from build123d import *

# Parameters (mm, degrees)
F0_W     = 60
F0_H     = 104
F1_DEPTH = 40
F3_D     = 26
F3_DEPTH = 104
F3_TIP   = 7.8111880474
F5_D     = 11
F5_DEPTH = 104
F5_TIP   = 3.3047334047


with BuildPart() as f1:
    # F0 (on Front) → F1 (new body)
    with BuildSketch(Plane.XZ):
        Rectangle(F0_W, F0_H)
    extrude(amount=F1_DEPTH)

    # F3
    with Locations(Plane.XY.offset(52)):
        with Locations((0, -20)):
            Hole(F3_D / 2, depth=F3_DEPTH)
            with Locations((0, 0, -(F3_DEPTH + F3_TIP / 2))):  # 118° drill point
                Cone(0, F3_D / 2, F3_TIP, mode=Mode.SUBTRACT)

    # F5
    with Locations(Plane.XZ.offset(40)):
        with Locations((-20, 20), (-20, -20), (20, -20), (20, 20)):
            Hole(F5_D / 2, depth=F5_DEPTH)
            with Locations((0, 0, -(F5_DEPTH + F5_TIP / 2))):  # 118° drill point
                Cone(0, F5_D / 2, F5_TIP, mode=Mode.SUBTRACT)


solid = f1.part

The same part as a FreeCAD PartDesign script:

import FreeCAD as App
import Part
import Sketcher

V = App.Vector
Q = App.Units.Quantity

doc = App.newDocument("Part")
params = doc.addObject("Spreadsheet::Sheet", "Params")
for row, (alias, value) in enumerate([
    ("sketch1_width", "60 mm"),
    ("sketch1_height", "104 mm"),
    ("pad1_length", "40 mm"),
    ("sketch2_diameter", "26 mm"),
    ("hole_diameter", "26 mm"),
    ("hole_depth", "104 mm"),
    ("sketch3_diameter", "11 mm"),
    ("hole2_diameter", "11 mm"),
    ("hole2_depth", "104 mm"),
], start=1):
    params.set(f"A{row}", alias)
    params.set(f"B{row}", "=" + value)
    params.setAlias(f"B{row}", alias)

body = doc.addObject("PartDesign::Body", "Body")

sketch1 = body.newObject("Sketcher::SketchObject", "Sketch")
sketch1.AttachmentSupport = (doc.getObject("XZ_Plane"), [""])
sketch1.MapMode = "FlatFace"
sketch1.addGeometry(Part.LineSegment(V(-30, 52, 0), V(-30, -52, 0)), False)
sketch1.addGeometry(Part.LineSegment(V(-30, -52, 0), V(30, -52, 0)), False)
sketch1.addGeometry(Part.LineSegment(V(30, -52, 0), V(30, 52, 0)), False)
sketch1.addGeometry(Part.LineSegment(V(30, 52, 0), V(-30, 52, 0)), False)
sketch1.addConstraint(Sketcher.Constraint("Coincident", 0, 2, 1, 1))
sketch1.addConstraint(Sketcher.Constraint("Coincident", 1, 2, 2, 1))
sketch1.addConstraint(Sketcher.Constraint("Coincident", 2, 2, 3, 1))
sketch1.addConstraint(Sketcher.Constraint("Coincident", 3, 2, 0, 1))
sketch1.addConstraint(Sketcher.Constraint("Vertical", 0))
sketch1.addConstraint(Sketcher.Constraint("Horizontal", 1))
sketch1.addConstraint(Sketcher.Constraint("Vertical", 2))
sketch1.addConstraint(Sketcher.Constraint("Horizontal", 3))
sketch1.addConstraint(Sketcher.Constraint("Symmetric", 0, 2, 2, 2, -1, 1))
sketch1.addConstraint(Sketcher.Constraint("DistanceX", 1, 1, 1, 2, Q("60 mm")))
sketch1.addConstraint(Sketcher.Constraint("DistanceY", 0, 2, 0, 1, Q("104 mm")))
sketch1.setExpression("Constraints[9]", "Params.sketch1_width")
sketch1.setExpression("Constraints[10]", "Params.sketch1_height")
pad1 = body.newObject("PartDesign::Pad", "Pad")
pad1.Profile = sketch1
pad1.setExpression("Length", "Params.pad1_length")

sketch2 = body.newObject("Sketcher::SketchObject", "Sketch001")
sketch2.AttachmentSupport = (doc.getObject("XY_Plane"), [""])
sketch2.MapMode = "FlatFace"
sketch2.AttachmentOffset = App.Placement(V(0, 0, 52), App.Rotation())
sketch2.addGeometry(Part.Circle(V(0, -20, 0), V(0, 0, 1), 13), False)
sketch2.addConstraint(Sketcher.Constraint("PointOnObject", 0, 3, -2))
sketch2.addConstraint(Sketcher.Constraint("Diameter", 0, Q("26 mm")))
sketch2.addConstraint(Sketcher.Constraint("DistanceY", 0, 3, -1, 1, Q("20 mm")))
sketch2.setExpression("Constraints[1]", "Params.sketch2_diameter")
doc.recompute()
hole = body.newObject("PartDesign::Hole", "Hole")
hole.Profile = sketch2
hole.ThreadType = "None"
hole.setExpression("Diameter", "Params.hole_diameter")
hole.DepthType = "Dimension"
hole.setExpression("Depth", "Params.hole_depth")
hole.DrillPoint = "Angled"
hole.DrillPointAngle = 118

sketch3 = body.newObject("Sketcher::SketchObject", "Sketch002")
sketch3.AttachmentSupport = (doc.getObject("XZ_Plane"), [""])
sketch3.MapMode = "FlatFace"
sketch3.AttachmentOffset = App.Placement(V(0, 0, 40), App.Rotation())
sketch3.addGeometry(Part.Circle(V(-20, 20, 0), V(0, 0, 1), 5.5), False)
sketch3.addGeometry(Part.Circle(V(-20, -20, 0), V(0, 0, 1), 5.5), False)
sketch3.addGeometry(Part.Circle(V(20, -20, 0), V(0, 0, 1), 5.5), False)
sketch3.addGeometry(Part.Circle(V(20, 20, 0), V(0, 0, 1), 5.5), False)
sketch3.addConstraint(Sketcher.Constraint("Equal", 0, 1))
sketch3.addConstraint(Sketcher.Constraint("Equal", 1, 2))
sketch3.addConstraint(Sketcher.Constraint("Equal", 2, 3))
sketch3.addConstraint(Sketcher.Constraint("Symmetric", 0, 3, 2, 3, -1, 1))
sketch3.addConstraint(Sketcher.Constraint("Symmetric", 1, 3, 3, 3, -1, 1))
sketch3.addConstraint(Sketcher.Constraint("Symmetric", 1, 3, 2, 3, -2))
sketch3.addConstraint(Sketcher.Constraint("Diameter", 0, Q("11 mm")))
sketch3.addConstraint(Sketcher.Constraint("DistanceX", 0, 3, -1, 1, Q("20 mm")))
sketch3.addConstraint(Sketcher.Constraint("DistanceY", -1, 1, 0, 3, Q("20 mm")))
sketch3.setExpression("Constraints[6]", "Params.sketch3_diameter")
doc.recompute()
hole2 = body.newObject("PartDesign::Hole", "Hole001")
hole2.Profile = sketch3
hole2.ThreadType = "None"
hole2.setExpression("Diameter", "Params.hole2_diameter")
hole2.DepthType = "Dimension"
hole2.setExpression("Depth", "Params.hole2_depth")
hole2.DrillPoint = "Angled"
hole2.DrillPointAngle = 118

doc.recompute()
